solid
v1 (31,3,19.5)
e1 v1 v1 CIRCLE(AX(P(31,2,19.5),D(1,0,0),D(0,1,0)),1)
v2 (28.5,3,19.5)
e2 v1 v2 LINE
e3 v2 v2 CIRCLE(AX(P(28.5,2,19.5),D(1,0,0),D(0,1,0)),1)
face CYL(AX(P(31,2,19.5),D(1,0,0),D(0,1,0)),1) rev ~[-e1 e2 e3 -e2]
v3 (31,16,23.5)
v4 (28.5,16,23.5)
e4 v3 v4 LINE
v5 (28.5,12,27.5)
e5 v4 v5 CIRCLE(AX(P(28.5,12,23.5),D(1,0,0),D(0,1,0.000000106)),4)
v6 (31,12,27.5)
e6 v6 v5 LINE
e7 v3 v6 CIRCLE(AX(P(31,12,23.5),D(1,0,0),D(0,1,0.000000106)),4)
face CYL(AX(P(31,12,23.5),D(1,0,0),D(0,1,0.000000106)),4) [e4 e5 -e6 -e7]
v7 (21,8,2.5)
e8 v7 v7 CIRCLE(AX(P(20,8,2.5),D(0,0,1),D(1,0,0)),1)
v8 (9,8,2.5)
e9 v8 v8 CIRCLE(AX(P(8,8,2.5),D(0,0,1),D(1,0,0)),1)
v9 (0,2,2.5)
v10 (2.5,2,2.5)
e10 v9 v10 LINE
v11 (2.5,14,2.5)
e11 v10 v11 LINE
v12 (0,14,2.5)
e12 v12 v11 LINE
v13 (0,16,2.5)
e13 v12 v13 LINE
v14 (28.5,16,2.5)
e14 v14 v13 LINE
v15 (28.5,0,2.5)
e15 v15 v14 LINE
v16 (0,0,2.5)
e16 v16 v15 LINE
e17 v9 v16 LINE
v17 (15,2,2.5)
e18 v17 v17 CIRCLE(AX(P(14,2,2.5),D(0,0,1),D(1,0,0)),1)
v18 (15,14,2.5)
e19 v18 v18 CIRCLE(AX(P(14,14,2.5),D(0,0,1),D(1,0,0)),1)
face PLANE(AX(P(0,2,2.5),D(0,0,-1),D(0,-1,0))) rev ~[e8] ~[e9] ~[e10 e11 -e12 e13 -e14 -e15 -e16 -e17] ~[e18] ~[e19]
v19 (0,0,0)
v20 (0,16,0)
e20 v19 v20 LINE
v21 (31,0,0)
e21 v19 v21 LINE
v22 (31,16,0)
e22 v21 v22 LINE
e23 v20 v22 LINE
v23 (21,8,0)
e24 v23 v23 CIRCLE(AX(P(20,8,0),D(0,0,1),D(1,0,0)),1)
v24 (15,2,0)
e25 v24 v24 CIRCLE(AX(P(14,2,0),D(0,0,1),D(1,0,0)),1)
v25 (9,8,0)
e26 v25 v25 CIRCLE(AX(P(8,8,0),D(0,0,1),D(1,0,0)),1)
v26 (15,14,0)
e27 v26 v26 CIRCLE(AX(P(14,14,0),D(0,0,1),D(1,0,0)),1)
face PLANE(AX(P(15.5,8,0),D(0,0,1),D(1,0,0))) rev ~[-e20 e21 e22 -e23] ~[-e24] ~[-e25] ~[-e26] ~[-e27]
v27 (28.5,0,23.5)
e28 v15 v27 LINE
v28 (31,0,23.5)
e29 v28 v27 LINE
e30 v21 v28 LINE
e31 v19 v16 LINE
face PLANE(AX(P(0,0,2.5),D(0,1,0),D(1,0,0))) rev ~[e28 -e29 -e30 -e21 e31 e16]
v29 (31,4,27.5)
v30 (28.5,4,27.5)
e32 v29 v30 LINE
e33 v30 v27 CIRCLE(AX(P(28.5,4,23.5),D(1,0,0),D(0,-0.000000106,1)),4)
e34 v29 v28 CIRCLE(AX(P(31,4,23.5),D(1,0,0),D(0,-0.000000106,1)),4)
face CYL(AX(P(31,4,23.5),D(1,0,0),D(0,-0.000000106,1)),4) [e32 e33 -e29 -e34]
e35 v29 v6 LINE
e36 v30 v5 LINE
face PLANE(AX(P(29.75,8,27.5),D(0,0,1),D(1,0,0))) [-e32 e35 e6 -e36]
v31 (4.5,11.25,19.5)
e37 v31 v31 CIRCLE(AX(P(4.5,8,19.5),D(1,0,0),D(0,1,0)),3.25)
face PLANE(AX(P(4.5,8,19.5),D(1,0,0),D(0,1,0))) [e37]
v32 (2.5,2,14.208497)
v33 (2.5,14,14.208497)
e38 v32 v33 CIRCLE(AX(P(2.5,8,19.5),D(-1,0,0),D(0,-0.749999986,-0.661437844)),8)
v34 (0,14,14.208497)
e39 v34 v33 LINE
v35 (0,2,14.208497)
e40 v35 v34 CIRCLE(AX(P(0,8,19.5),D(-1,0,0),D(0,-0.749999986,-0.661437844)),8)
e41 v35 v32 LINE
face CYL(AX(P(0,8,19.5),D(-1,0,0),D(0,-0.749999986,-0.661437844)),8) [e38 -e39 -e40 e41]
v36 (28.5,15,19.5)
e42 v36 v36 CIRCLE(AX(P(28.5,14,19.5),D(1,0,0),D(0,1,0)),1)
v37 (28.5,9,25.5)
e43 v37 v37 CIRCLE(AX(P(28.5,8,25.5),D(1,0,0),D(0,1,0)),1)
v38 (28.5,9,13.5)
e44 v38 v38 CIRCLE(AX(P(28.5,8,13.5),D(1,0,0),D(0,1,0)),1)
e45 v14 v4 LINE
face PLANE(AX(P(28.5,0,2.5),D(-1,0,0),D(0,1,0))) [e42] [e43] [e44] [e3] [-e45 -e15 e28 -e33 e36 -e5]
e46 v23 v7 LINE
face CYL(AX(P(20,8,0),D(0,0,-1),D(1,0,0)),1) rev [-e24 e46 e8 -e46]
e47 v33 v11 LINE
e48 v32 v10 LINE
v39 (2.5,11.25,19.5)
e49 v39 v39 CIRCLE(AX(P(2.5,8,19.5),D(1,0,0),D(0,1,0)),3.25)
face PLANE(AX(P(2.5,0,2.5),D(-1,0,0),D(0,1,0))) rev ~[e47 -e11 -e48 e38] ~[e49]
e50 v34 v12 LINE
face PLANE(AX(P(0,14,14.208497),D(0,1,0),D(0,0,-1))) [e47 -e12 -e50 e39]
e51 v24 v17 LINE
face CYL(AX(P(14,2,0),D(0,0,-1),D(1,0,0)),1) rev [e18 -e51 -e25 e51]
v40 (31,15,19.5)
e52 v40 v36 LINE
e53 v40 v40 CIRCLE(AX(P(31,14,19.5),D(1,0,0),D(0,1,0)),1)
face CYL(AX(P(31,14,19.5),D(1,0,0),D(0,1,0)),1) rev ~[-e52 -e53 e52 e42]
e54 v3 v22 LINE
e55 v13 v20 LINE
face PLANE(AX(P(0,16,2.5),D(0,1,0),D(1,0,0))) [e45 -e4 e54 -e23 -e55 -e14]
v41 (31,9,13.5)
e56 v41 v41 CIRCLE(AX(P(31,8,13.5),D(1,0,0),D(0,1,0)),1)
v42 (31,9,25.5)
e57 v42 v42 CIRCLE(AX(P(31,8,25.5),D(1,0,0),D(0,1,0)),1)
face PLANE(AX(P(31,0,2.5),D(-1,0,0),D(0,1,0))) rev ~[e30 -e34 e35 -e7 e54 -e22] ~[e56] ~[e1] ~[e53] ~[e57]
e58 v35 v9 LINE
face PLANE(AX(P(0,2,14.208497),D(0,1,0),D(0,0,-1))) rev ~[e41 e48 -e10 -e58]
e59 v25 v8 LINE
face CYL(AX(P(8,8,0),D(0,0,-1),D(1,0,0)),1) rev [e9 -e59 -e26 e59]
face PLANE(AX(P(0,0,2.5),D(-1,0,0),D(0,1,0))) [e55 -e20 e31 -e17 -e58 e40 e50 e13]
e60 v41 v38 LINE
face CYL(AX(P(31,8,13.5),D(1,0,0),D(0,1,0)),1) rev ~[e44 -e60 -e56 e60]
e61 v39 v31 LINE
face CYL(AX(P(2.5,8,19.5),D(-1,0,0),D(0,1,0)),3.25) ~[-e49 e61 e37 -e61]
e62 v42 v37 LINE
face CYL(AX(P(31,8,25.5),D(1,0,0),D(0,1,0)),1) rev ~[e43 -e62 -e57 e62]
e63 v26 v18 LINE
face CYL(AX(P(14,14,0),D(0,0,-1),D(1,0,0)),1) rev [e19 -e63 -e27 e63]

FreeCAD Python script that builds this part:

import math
import FreeCAD as App
import Part
import Sketcher
from FreeCAD import Vector

doc = App.newDocument("Part")
body = doc.addObject("PartDesign::Body", "Body")

sketch1 = body.newObject("Sketcher::SketchObject", "Sketch")
sketch1.AttachmentSupport = (doc.getObject("XY_Plane"), [""])
sketch1.MapMode = "FlatFace"
sketch1.addGeometry([
    Part.LineSegment(Vector(0, 16, 0), Vector(0, 0, 0)),
    Part.LineSegment(Vector(0, 0, 0), Vector(31, 0, 0)),
    Part.LineSegment(Vector(31, 0, 0), Vector(31, 16, 0)),
    Part.LineSegment(Vector(31, 16, 0), Vector(0, 16, 0)),
    Part.Circle(Vector(14, 2, 0), Vector(0, 0, 1), 1),
    Part.Circle(Vector(8, 8, 0), Vector(0, 0, 1), 1),
    Part.Circle(Vector(20, 8, 0), Vector(0, 0, 1), 1),
    Part.Circle(Vector(14, 14, 0), Vector(0, 0, 1), 1),
], False)
sketch1.addConstraint([
    Sketcher.Constraint("Coincident", 0, 2, 1, 1),
    Sketcher.Constraint("Coincident", 1, 2, 2, 1),
    Sketcher.Constraint("Coincident", 2, 2, 3, 1),
    Sketcher.Constraint("Coincident", 3, 2, 0, 1),
    Sketcher.Constraint("Vertical", 0),
    Sketcher.Constraint("Horizontal", 1),
    Sketcher.Constraint("Vertical", 2),
    Sketcher.Constraint("Horizontal", 3),
    Sketcher.Constraint("Coincident", 0, 2, -1, 1),
    Sketcher.Constraint("Equal", 4, 5),
    Sketcher.Constraint("Equal", 5, 6),
    Sketcher.Constraint("Equal", 6, 7),
    Sketcher.Constraint("Horizontal", 5, 3, 6, 3),
    Sketcher.Constraint("Vertical", 4, 3, 7, 3),
    Sketcher.Constraint("Diameter", 4, 2.0),
    Sketcher.Constraint("DistanceX", 1, 1, 1, 2, 31.0),
    Sketcher.Constraint("DistanceY", 0, 2, 0, 1, 16.0),
    Sketcher.Constraint("DistanceX", -1, 1, 4, 3, 14.0),
    Sketcher.Constraint("DistanceY", -1, 1, 4, 3, 2.0),
    Sketcher.Constraint("DistanceX", -1, 1, 5, 3, 8.0),
    Sketcher.Constraint("DistanceY", -1, 1, 5, 3, 8.0),
    Sketcher.Constraint("DistanceX", -1, 1, 6, 3, 20.0),
    Sketcher.Constraint("DistanceY", -1, 1, 7, 3, 14.0),
])
pad1 = body.newObject("PartDesign::Pad", "Pad")
pad1.Profile = sketch1
pad1.Length = 2.5

sketch2 = body.newObject("Sketcher::SketchObject", "Sketch001")
sketch2.AttachmentSupport = (doc.getObject("XY_Plane"), [""])
sketch2.MapMode = "FlatFace"
sketch2.AttachmentOffset = App.Placement(Vector(0, 0, 2.5), App.Rotation())
sketch2.addGeometry([
    Part.LineSegment(Vector(28.5, 16, 0), Vector(28.5, 0, 0)),
    Part.LineSegment(Vector(28.5, 0, 0), Vector(31, 0, 0)),
    Part.LineSegment(Vector(31, 0, 0), Vector(31, 16, 0)),
    Part.LineSegment(Vector(31, 16, 0), Vector(28.5, 16, 0)),
], False)
sketch2.addConstraint([
    Sketcher.Constraint("Coincident", 0, 2, 1, 1),
    Sketcher.Constraint("Coincident", 1, 2, 2, 1),
    Sketcher.Constraint("Coincident", 2, 2, 3, 1),
    Sketcher.Constraint("Coincident", 3, 2, 0, 1),
    Sketcher.Constraint("Vertical", 0),
    Sketcher.Constraint("Horizontal", 1),
    Sketcher.Constraint("Vertical", 2),
    Sketcher.Constraint("Horizontal", 3),
    Sketcher.Constraint("PointOnObject", 0, 2, -1),
    Sketcher.Constraint("DistanceY", 0, 2, 0, 1, 16.0),
    Sketcher.Constraint("DistanceX", 1, 1, 1, 2, 2.5),
    Sketcher.Constraint("DistanceX", -1, 1, 1, 2, 31.0),
])
pad2 = body.newObject("PartDesign::Pad", "Pad001")
pad2.Profile = sketch2
pad2.Length = 25

sketch3 = body.newObject("Sketcher::SketchObject", "Sketch002")
sketch3.AttachmentSupport = (doc.getObject("YZ_Plane"), [""])
sketch3.MapMode = "FlatFace"
sketch3.AttachmentOffset = App.Placement(Vector(0, 0, 31), App.Rotation())
sketch3.addGeometry([
    Part.Circle(Vector(8, 25.5, 0), Vector(0, 0, 1), 1),
    Part.Circle(Vector(2, 19.5, 0), Vector(0, 0, 1), 1),
    Part.Circle(Vector(14, 19.5, 0), Vector(0, 0, 1), 1),
    Part.Circle(Vector(8, 13.5, 0), Vector(0, 0, 1), 1),
    Part.ArcOfCircle(Part.Circle(Vector(4, 23.5, 0), Vector(0, 0, 1), 4), math.radians(90), math.radians(180)),
    Part.LineSegment(Vector(4, 27.5, 0), Vector(4, 29.5, 0)),
    Part.LineSegment(Vector(4, 29.5, 0), Vector(-2, 29.5, 0)),
    Part.LineSegment(Vector(-2, 29.5, 0), Vector(-2, 23.5, 0)),
    Part.LineSegment(Vector(-2, 23.5, 0), Vector(0, 23.5, 0)),
    Part.ArcOfCircle(Part.Circle(Vector(12, 23.5, 0), Vector(0, 0, 1), 4), math.radians(0), math.radians(90)),
    Part.LineSegment(Vector(16, 23.5, 0), Vector(18, 23.5, 0)),
    Part.LineSegment(Vector(18, 23.5, 0), Vector(18, 29.5, 0)),
    Part.LineSegment(Vector(18, 29.5, 0), Vector(12, 29.5, 0)),
    Part.LineSegment(Vector(12, 29.5, 0), Vector(12, 27.5, 0)),
], False)
sketch3.addConstraint([
    Sketcher.Constraint("Coincident", 4, 1, 5, 1),
    Sketcher.Constraint("Coincident", 5, 2, 6, 1),
    Sketcher.Constraint("Coincident", 6, 2, 7, 1),
    Sketcher.Constraint("Coincident", 7, 2, 8, 1),
    Sketcher.Constraint("Coincident", 8, 2, 4, 2),
    Sketcher.Constraint("Coincident", 9, 1, 10, 1),
    Sketcher.Constraint("Coincident", 10, 2, 11, 1),
    Sketcher.Constraint("Coincident", 11, 2, 12, 1),
    Sketcher.Constraint("Coincident", 12, 2, 13, 1),
    Sketcher.Constraint("Coincident", 13, 2, 9, 2),
    Sketcher.Constraint("Vertical", 5),
    Sketcher.Constraint("Horizontal", 6),
    Sketcher.Constraint("Vertical", 7),
    Sketcher.Constraint("Horizontal", 8),
    Sketcher.Constraint("Horizontal", 10),
    Sketcher.Constraint("Vertical", 11),
    Sketcher.Constraint("Horizontal", 12),
    Sketcher.Constraint("Vertical", 13),
    Sketcher.Constraint("Equal", 0, 1),
    Sketcher.Constraint("Equal", 1, 2),
    Sketcher.Constraint("Equal", 2, 3),
    Sketcher.Constraint("Equal", 4, 9),
    Sketcher.Constraint("PointOnObject", 8, 2, -2),
    Sketcher.Constraint("Horizontal", 1, 3, 2, 3),
    Sketcher.Constraint("Horizontal", 4, 3, 9, 3),
    Sketcher.Constraint("Horizontal", 9, 3, 7, 2),
    Sketcher.Constraint("Horizontal", 8, 2, 9, 1),
    Sketcher.Constraint("Horizontal", 6, 2, 11, 2),
    Sketcher.Constraint("Vertical", 0, 3, 3, 3),
    Sketcher.Constraint("Vertical", 9, 3, 12, 2),
    Sketcher.Constraint("Equal", 8, 10),
    Sketcher.Constraint("Equal", 6, 12),
    Sketcher.Constraint("Equal", 10, 5),
    Sketcher.Constraint("Diameter", 0, 2.0),
    Sketcher.Constraint("Radius", 4, 4.0),
    Sketcher.Constraint("DistanceX", 6, 2, 6, 1, 6.0),
    Sketcher.Constraint("DistanceX", -1, 1, 0, 3, 8.0),
    Sketcher.Constraint("DistanceX", -1, 1, 1, 3, 2.0),
    Sketcher.Constraint("DistanceX", -1, 1, 2, 3, 14.0),
    Sketcher.Constraint("DistanceX", -1, 1, 9, 3, 12.0),
    Sketcher.Constraint("DistanceY", 1, 3, 0, 3, 6.0),
    Sketcher.Constraint("DistanceY", 3, 3, 1, 3, 6.0),
    Sketcher.Constraint("DistanceY", 4, 3, 0, 3, 2.0),
    Sketcher.Constraint("DistanceY", -1, 1, 0, 3, 25.5),
])
pocket1 = body.newObject("PartDesign::Pocket", "Pocket")
pocket1.Profile = sketch3
pocket1.Length = 5

sketch4 = body.newObject("Sketcher::SketchObject", "Sketch003")
sketch4.AttachmentSupport = (doc.getObject("XY_Plane"), [""])
sketch4.MapMode = "FlatFace"
sketch4.AttachmentOffset = App.Placement(Vector(0, 0, 2.5), App.Rotation())
sketch4.addGeometry([
    Part.LineSegment(Vector(0, 16, 0), Vector(0, 0, 0)),
    Part.LineSegment(Vector(0, 0, 0), Vector(2.5, 0, 0)),
    Part.LineSegment(Vector(2.5, 0, 0), Vector(2.5, 16, 0)),
    Part.LineSegment(Vector(2.5, 16, 0), Vector(0, 16, 0)),
], False)
sketch4.addConstraint([
    Sketcher.Constraint("Coincident", 0, 2, 1, 1),
    Sketcher.Constraint("Coincident", 1, 2, 2, 1),
    Sketcher.Constraint("Coincident", 2, 2, 3, 1),
    Sketcher.Constraint("Coincident", 3, 2, 0, 1),
    Sketcher.Constraint("Vertical", 0),
    Sketcher.Constraint("Horizontal", 1),
    Sketcher.Constraint("Vertical", 2),
    Sketcher.Constraint("Horizontal", 3),
    Sketcher.Constraint("Coincident", 0, 2, -1, 1),
    Sketcher.Constraint("DistanceY", 0, 2, 0, 1, 16.0),
    Sketcher.Constraint("DistanceX", 1, 1, 1, 2, 2.5),
])
pad3 = body.newObject("PartDesign::Pad", "Pad002")
pad3.Profile = sketch4
pad3.Length = 25

sketch5 = body.newObject("Sketcher::SketchObject", "Sketch004")
sketch5.AttachmentSupport = (doc.getObject("YZ_Plane"), [""])
sketch5.MapMode = "FlatFace"
sketch5.addGeometry([
    Part.ArcOfCircle(Part.Circle(Vector(8, 19.5, 0), Vector(0, 0, 1), 8), math.radians(-41), math.radians(221)),
    Part.LineSegment(Vector(2, 14.2, 0), Vector(2, 2.5, 0)),
    Part.LineSegment(Vector(2, 2.5, 0), Vector(-2, 2.5, 0)),
    Part.LineSegment(Vector(-2, 2.5, 0), Vector(-2, 29.5, 0)),
    Part.LineSegment(Vector(-2, 29.5, 0), Vector(18, 29.5, 0)),
    Part.LineSegment(Vector(18, 29.5, 0), Vector(18, 2.5, 0)),
    Part.LineSegment(Vector(18, 2.5, 0), Vector(14, 2.5, 0)),
    Part.LineSegment(Vector(14, 2.5, 0), Vector(14, 14.2, 0)),
], False)
sketch5.addConstraint([
    Sketcher.Constraint("Coincident", 0, 2, 1, 1),
    Sketcher.Constraint("Coincident", 1, 2, 2, 1),
    Sketcher.Constraint("Coincident", 2, 2, 3, 1),
    Sketcher.Constraint("Coincident", 3, 2, 4, 1),
    Sketcher.Constraint("Coincident", 4, 2, 5, 1),
    Sketcher.Constraint("Coincident", 5, 2, 6, 1),
    Sketcher.Constraint("Coincident", 6, 2, 7, 1),
    Sketcher.Constraint("Coincident", 7, 2, 0, 1),
    Sketcher.Constraint("Vertical", 1),
    Sketcher.Constraint("Horizontal", 2),
    Sketcher.Constraint("Vertical", 3),
    Sketcher.Constraint("Horizontal", 4),
    Sketcher.Constraint("Vertical", 5),
    Sketcher.Constraint("Horizontal", 6),
    Sketcher.Constraint("Vertical", 7),
    Sketcher.Constraint("Horizontal", 2, 2, 5, 2),
    Sketcher.Constraint("Horizontal", 0, 2, 7, 2),
    Sketcher.Constraint("Equal", 2, 6),
    Sketcher.Constraint("Radius", 0, 8.0),
    Sketcher.Constraint("DistanceX", 2, 2, 2, 1, 4.0),
    Sketcher.Constraint("DistanceX", 4, 1, 4, 2, 20.0),
    Sketcher.Constraint("DistanceY", 3, 1, 3, 2, 27.0),
    Sketcher.Constraint("DistanceX", -1, 1, 0, 3, 8.0),
    Sketcher.Constraint("DistanceY", 1, 2, 0, 3, 17.0),
    Sketcher.Constraint("DistanceY", -1, 1, 0, 3, 19.5),
])
pocket2 = body.newObject("PartDesign::Pocket", "Pocket001")
pocket2.Profile = sketch5
pocket2.Length = 5
pocket2.Reversed = True

sketch6 = body.newObject("Sketcher::SketchObject", "Sketch005")
sketch6.AttachmentSupport = (doc.getObject("YZ_Plane"), [""])
sketch6.MapMode = "FlatFace"
sketch6.AttachmentOffset = App.Placement(Vector(0, 0, 2.5), App.Rotation())
sketch6.addGeometry(Part.Circle(Vector(8, 19.5, 0), Vector(0, 0, 1), 3.2), False)
sketch6.addConstraint([
    Sketcher.Constraint("Diameter", 0, 6.5),
    Sketcher.Constraint("DistanceX", -1, 1, 0, 3, 8.0),
    Sketcher.Constraint("DistanceY", -1, 1, 0, 3, 19.5),
])
pad4 = body.newObject("PartDesign::Pad", "Pad003")
pad4.Profile = sketch6
pad4.Length = 2

doc.recompute()
